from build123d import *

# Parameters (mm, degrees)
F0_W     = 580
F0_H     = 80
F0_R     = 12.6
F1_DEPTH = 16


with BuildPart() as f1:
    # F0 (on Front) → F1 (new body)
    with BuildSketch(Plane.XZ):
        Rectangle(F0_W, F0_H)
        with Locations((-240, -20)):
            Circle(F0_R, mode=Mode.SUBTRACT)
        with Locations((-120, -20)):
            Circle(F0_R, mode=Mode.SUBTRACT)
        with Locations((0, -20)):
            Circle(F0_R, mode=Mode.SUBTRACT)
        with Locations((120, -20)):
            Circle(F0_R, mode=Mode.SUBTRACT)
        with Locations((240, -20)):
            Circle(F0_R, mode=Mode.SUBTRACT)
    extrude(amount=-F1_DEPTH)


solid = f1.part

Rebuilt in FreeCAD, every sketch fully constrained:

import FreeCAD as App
import Part
import Sketcher
Q = App.Units.Quantity


def add_polygon(sketch, points):
    """Adds a closed chain of lines whose ends are joined by coincident constraints."""
    first, n = sketch.GeometryCount, len(points)
    for a, b in zip(points, points[1:] + points[:1]):
        sketch.addGeometry(Part.LineSegment(App.Vector(*a, 0), App.Vector(*b, 0)), False)
    for i in range(n):
        sketch.addConstraint(Sketcher.Constraint("Coincident", first + i, 2, first + (i + 1) % n, 1))

doc = App.newDocument("Part")
body = doc.addObject("PartDesign::Body", "Body")

sketch1 = body.newObject("Sketcher::SketchObject", "Sketch")
sketch1.AttachmentSupport = (doc.getObject("XZ_Plane"), [""])
sketch1.MapMode = "FlatFace"
add_polygon(sketch1, [(-290, 40), (-290, -40), (290, -40), (290, 40)])
sketch1.addGeometry(Part.Circle(App.Vector(-240, -20, 0), App.Vector(0, 0, 1), 12.6), False)
sketch1.addGeometry(Part.Circle(App.Vector(-120, -20, 0), App.Vector(0, 0, 1), 12.6), False)
sketch1.addGeometry(Part.Circle(App.Vector(0, -20, 0), App.Vector(0, 0, 1), 12.6), False)
sketch1.addGeometry(Part.Circle(App.Vector(120, -20, 0), App.Vector(0, 0, 1), 12.6), False)
sketch1.addGeometry(Part.Circle(App.Vector(240, -20, 0), App.Vector(0, 0, 1), 12.6), False)
sketch1.addConstraint([
    Sketcher.Constraint("Vertical", 0),
    Sketcher.Constraint("Horizontal", 1),
    Sketcher.Constraint("Vertical", 2),
    Sketcher.Constraint("Horizontal", 3),
    Sketcher.Constraint("Equal", 4, 5),
    Sketcher.Constraint("Equal", 5, 6),
    Sketcher.Constraint("Equal", 6, 7),
    Sketcher.Constraint("Equal", 7, 8),
    Sketcher.Constraint("Symmetric", 0, 2, 2, 2, -1, 1),
    Sketcher.Constraint("Symmetric", 5, 3, 7, 3, -2),
    Sketcher.Constraint("Symmetric", 4, 3, 8, 3, -2),
    Sketcher.Constraint("PointOnObject", 6, 3, -2),
    Sketcher.Constraint("Horizontal", 4, 3, 5, 3),
    Sketcher.Constraint("Horizontal", 5, 3, 6, 3),
    Sketcher.Constraint("Diameter", 4, Q("25.2 mm")),
    Sketcher.Constraint("DistanceX", 1, 1, 1, 2, Q("580 mm")),
    Sketcher.Constraint("DistanceY", 0, 2, 0, 1, Q("80 mm")),
    Sketcher.Constraint("DistanceX", 4, 3, -1, 1, Q("240 mm")),
    Sketcher.Constraint("DistanceY", 4, 3, -1, 1, Q("20 mm")),
    Sketcher.Constraint("DistanceX", 5, 3, -1, 1, Q("120 mm")),
])
pad1 = body.newObject("PartDesign::Pad", "Pad")
pad1.Profile = sketch1
pad1.Length = 16
pad1.Reversed = True

doc.recompute()
